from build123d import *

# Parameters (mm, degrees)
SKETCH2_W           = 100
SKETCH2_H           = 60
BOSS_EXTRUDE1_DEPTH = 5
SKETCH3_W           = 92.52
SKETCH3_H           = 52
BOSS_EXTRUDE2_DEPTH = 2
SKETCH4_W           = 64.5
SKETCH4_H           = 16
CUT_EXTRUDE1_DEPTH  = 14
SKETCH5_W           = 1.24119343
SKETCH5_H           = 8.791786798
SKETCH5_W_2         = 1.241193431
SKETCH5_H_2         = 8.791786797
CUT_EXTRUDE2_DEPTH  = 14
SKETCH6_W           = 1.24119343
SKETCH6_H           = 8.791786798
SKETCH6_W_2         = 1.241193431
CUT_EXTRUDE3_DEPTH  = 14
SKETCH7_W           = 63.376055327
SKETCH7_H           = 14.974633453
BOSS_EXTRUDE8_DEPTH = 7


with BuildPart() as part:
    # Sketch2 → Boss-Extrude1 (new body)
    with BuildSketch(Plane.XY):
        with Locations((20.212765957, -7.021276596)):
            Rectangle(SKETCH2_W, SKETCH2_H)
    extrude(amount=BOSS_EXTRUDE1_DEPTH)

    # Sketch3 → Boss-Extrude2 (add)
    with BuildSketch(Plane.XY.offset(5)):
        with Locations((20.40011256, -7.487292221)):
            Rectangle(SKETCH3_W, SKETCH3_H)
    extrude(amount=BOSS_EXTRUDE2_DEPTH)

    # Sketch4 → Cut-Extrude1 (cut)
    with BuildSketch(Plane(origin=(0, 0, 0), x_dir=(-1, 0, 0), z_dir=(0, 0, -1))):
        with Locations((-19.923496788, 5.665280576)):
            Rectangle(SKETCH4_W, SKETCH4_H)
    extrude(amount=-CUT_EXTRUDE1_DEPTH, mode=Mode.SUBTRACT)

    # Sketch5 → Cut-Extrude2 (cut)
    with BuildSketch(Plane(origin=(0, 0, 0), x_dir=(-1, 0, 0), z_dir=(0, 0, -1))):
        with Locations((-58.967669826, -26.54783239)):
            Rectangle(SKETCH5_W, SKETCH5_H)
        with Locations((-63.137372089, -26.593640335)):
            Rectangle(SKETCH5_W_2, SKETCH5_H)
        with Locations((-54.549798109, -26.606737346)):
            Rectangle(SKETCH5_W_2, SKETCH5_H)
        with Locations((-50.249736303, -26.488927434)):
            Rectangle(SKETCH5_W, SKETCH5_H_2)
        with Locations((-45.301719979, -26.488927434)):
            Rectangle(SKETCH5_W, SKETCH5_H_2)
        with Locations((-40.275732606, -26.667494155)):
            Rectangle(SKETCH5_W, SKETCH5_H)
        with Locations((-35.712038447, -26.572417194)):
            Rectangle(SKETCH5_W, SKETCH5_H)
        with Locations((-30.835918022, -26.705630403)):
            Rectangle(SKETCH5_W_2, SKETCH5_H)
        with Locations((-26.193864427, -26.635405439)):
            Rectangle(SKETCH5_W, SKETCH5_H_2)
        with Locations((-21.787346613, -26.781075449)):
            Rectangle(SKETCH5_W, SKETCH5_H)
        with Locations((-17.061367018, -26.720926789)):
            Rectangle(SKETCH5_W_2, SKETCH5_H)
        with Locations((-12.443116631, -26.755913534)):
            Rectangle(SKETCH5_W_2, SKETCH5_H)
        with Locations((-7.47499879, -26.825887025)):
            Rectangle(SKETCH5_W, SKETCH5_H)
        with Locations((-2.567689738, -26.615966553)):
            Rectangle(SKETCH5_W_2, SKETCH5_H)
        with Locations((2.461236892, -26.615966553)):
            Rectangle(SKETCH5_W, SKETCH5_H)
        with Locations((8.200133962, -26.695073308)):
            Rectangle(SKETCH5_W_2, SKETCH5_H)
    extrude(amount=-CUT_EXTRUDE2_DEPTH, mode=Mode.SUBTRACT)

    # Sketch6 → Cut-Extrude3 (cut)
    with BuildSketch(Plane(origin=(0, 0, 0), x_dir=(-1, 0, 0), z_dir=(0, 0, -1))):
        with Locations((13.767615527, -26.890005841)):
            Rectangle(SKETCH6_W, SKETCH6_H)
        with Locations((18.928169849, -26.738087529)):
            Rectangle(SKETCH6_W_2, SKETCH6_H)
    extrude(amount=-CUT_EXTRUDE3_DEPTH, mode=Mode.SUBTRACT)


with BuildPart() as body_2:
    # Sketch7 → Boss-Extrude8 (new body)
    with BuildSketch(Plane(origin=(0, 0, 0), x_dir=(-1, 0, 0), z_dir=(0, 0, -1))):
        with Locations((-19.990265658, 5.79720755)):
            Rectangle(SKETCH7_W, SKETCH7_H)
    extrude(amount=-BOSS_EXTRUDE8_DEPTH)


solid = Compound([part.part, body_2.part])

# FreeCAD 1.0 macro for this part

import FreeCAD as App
import Part
import Sketcher

V = App.Vector
Q = App.Units.Quantity

doc = App.newDocument("Part")
params = doc.addObject("Spreadsheet::Sheet", "Params")
for row, (alias, value) in enumerate([
    ("sketch1_width", "100 mm"),
    ("sketch1_height", "60 mm"),
    ("pad1_length", "5 mm"),
    ("sketch2_height", "52 mm"),
    ("sketch2_width", "92.52 mm"),
    ("pad2_length", "2 mm"),
    ("sketch3_height", "16 mm"),
    ("sketch3_width", "64.5 mm"),
    ("pocket1_length", "14 mm"),
    ("pocket2_length", "14 mm"),
    ("pocket3_length", "14 mm"),
    ("pad3_length", "7 mm"),
], start=1):
    params.set(f"A{row}", alias)
    params.set(f"B{row}", "=" + value)
    params.setAlias(f"B{row}", alias)

body = doc.addObject("PartDesign::Body", "Body")

sketch1 = doc.addObject("Sketcher::SketchObject", "Sketch")
body.addObject(sketch1)
sketch1.AttachmentSupport = (doc.XY_Plane, [""])
sketch1.MapMode = "FlatFace"
sketch1.addGeometry([
    Part.LineSegment(V(-29.787234, 22.978723, 0), V(-29.787234, -37.021277, 0)),
    Part.LineSegment(V(-29.787234, -37.021277, 0), V(70.212766, -37.021277, 0)),
    Part.LineSegment(V(70.212766, -37.021277, 0), V(70.212766, 22.978723, 0)),
    Part.LineSegment(V(70.212766, 22.978723, 0), V(-29.787234, 22.978723, 0)),
], False)
sketch1.addConstraint([
    Sketcher.Constraint("Coincident", 0, 2, 1, 1),
    Sketcher.Constraint("Coincident", 1, 2, 2, 1),
    Sketcher.Constraint("Coincident", 2, 2, 3, 1),
    Sketcher.Constraint("Coincident", 3, 2, 0, 1),
    Sketcher.Constraint("Vertical", 0),
    Sketcher.Constraint("Horizontal", 1),
    Sketcher.Constraint("Vertical", 2),
    Sketcher.Constraint("Horizontal", 3),
    Sketcher.Constraint("DistanceX", 1, 1, 1, 2, Q("100 mm")),
    Sketcher.Constraint("DistanceY", 0, 2, 0, 1, Q("60 mm")),
    Sketcher.Constraint("DistanceX", 0, 2, -1, 1, Q("29.787234 mm")),
    Sketcher.Constraint("DistanceY", 0, 2, -1, 1, Q("37.021277 mm")),
])
sketch1.setExpression("Constraints[8]", "Params.sketch1_width")
sketch1.setExpression("Constraints[9]", "Params.sketch1_height")
pad1 = doc.addObject("PartDesign::Pad", "Pad")
body.addObject(pad1)
pad1.Profile = sketch1
pad1.setExpression("Length", "Params.pad1_length")

sketch2 = doc.addObject("Sketcher::SketchObject", "Sketch001")
body.addObject(sketch2)
sketch2.AttachmentSupport = (doc.XY_Plane, [""])
sketch2.MapMode = "FlatFace"
sketch2.AttachmentOffset = App.Placement(V(0, 0, 5), App.Rotation())
sketch2.addGeometry([
    Part.LineSegment(V(-25.859887, 18.512708, 0), V(-25.859887, -33.487292, 0)),
    Part.LineSegment(V(-25.859887, -33.487292, 0), V(66.660113, -33.487292, 0)),
    Part.LineSegment(V(66.660113, -33.487292, 0), V(66.660113, 18.512708, 0)),
    Part.LineSegment(V(66.660113, 18.512708, 0), V(-25.859887, 18.512708, 0)),
], False)
sketch2.addConstraint([
    Sketcher.Constraint("Coincident", 0, 2, 1, 1),
    Sketcher.Constraint("Coincident", 1, 2, 2, 1),
    Sketcher.Constraint("Coincident", 2, 2, 3, 1),
    Sketcher.Constraint("Coincident", 3, 2, 0, 1),
    Sketcher.Constraint("Vertical", 0),
    Sketcher.Constraint("Horizontal", 1),
    Sketcher.Constraint("Vertical", 2),
    Sketcher.Constraint("Horizontal", 3),
    Sketcher.Constraint("DistanceY", 0, 2, 0, 1, Q("52 mm")),
    Sketcher.Constraint("DistanceX", 1, 1, 1, 2, Q("92.52 mm")),
    Sketcher.Constraint("DistanceX", 0, 2, -1, 1, Q("25.859887 mm")),
    Sketcher.Constraint("DistanceY", 0, 2, -1, 1, Q("33.487292 mm")),
])
sketch2.setExpression("Constraints[8]", "Params.sketch2_height")
sketch2.setExpression("Constraints[9]", "Params.sketch2_width")
pad2 = doc.addObject("PartDesign::Pad", "Pad001")
body.addObject(pad2)
pad2.Profile = sketch2
pad2.setExpression("Length", "Params.pad2_length")

sketch3 = doc.addObject("Sketcher::SketchObject", "Sketch002")
body.addObject(sketch3)
sketch3.AttachmentSupport = (doc.XY_Plane, [""])
sketch3.MapMode = "FlatFace"
sketch3.addGeometry([
    Part.LineSegment(V(52.173497, 13.665281, 0), V(52.173497, -2.334719, 0)),
    Part.LineSegment(V(52.173497, -2.334719, 0), V(-12.326503, -2.334719, 0)),
    Part.LineSegment(V(-12.326503, -2.334719, 0), V(-12.326503, 13.665281, 0)),
    Part.LineSegment(V(-12.326503, 13.665281, 0), V(52.173497, 13.665281, 0)),
], False)
sketch3.addConstraint([
    Sketcher.Constraint("Coincident", 0, 2, 1, 1),
    Sketcher.Constraint("Coincident", 1, 2, 2, 1),
    Sketcher.Constraint("Coincident", 2, 2, 3, 1),
    Sketcher.Constraint("Coincident", 3, 2, 0, 1),
    Sketcher.Constraint("Vertical", 0),
    Sketcher.Constraint("Horizontal", 1),
    Sketcher.Constraint("Vertical", 2),
    Sketcher.Constraint("Horizontal", 3),
    Sketcher.Constraint("DistanceY", 0, 2, 0, 1, Q("16 mm")),
    Sketcher.Constraint("DistanceX", 1, 2, 1, 1, Q("64.5 mm")),
    Sketcher.Constraint("DistanceY", 0, 2, -1, 1, Q("2.334719 mm")),
    Sketcher.Constraint("DistanceX", -1, 1, 0, 2, Q("52.173497 mm")),
])
sketch3.setExpression("Constraints[8]", "Params.sketch3_height")
sketch3.setExpression("Constraints[9]", "Params.sketch3_width")
pocket1 = doc.addObject("PartDesign::Pocket", "Pocket")
body.addObject(pocket1)
pocket1.Profile = sketch3
pocket1.setExpression("Length", "Params.pocket1_length")
pocket1.Reversed = True

sketch4 = doc.addObject("Sketcher::SketchObject", "Sketch003")
body.addObject(sketch4)
sketch4.AttachmentSupport = (doc.XY_Plane, [""])
sketch4.MapMode = "FlatFace"
sketch4.addGeometry([
    Part.LineSegment(V(59.588267, -22.151939, 0), V(59.588267, -30.943726, 0)),
    Part.LineSegment(V(59.588267, -30.943726, 0), V(58.347073, -30.943726, 0)),
    Part.LineSegment(V(58.347073, -30.943726, 0), V(58.347073, -22.151939, 0)),
    Part.LineSegment(V(58.347073, -22.151939, 0), V(59.588267, -22.151939, 0)),
    Part.LineSegment(V(63.757969, -22.197747, 0), V(63.757969, -30.989534, 0)),
    Part.LineSegment(V(63.757969, -30.989534, 0), V(62.516775, -30.989534, 0)),
    Part.LineSegment(V(62.516775, -30.989534, 0), V(62.516775, -22.197747, 0)),
    Part.LineSegment(V(62.516775, -22.197747, 0), V(63.757969, -22.197747, 0)),
    Part.LineSegment(V(55.170395, -22.210844, 0), V(55.170395, -31.002631, 0)),
    Part.LineSegment(V(55.170395, -31.002631, 0), V(53.929201, -31.002631, 0)),
    Part.LineSegment(V(53.929201, -31.002631, 0), V(53.929201, -22.210844, 0)),
    Part.LineSegment(V(53.929201, -22.210844, 0), V(55.170395, -22.210844, 0)),
    Part.LineSegment(V(50.870333, -22.093034, 0), V(50.870333, -30.884821, 0)),
    Part.LineSegment(V(50.870333, -30.884821, 0), V(49.62914, -30.884821, 0)),
    Part.LineSegment(V(49.62914, -30.884821, 0), V(49.62914, -22.093034, 0)),
    Part.LineSegment(V(49.62914, -22.093034, 0), V(50.870333, -22.093034, 0)),
    Part.LineSegment(V(45.922317, -22.093034, 0), V(45.922317, -30.884821, 0)),
    Part.LineSegment(V(45.922317, -30.884821, 0), V(44.681123, -30.884821, 0)),
    Part.LineSegment(V(44.681123, -30.884821, 0), V(44.681123, -22.093034, 0)),
    Part.LineSegment(V(44.681123, -22.093034, 0), V(45.922317, -22.093034, 0)),
    Part.LineSegment(V(40.896329, -22.271601, 0), V(40.896329, -31.063388, 0)),
    Part.LineSegment(V(40.896329, -31.063388, 0), V(39.655136, -31.063388, 0)),
    Part.LineSegment(V(39.655136, -31.063388, 0), V(39.655136, -22.271601, 0)),
    Part.LineSegment(V(39.655136, -22.271601, 0), V(40.896329, -22.271601, 0)),
    Part.LineSegment(V(36.332635, -22.176524, 0), V(36.332635, -30.968311, 0)),
    Part.LineSegment(V(36.332635, -30.968311, 0), V(35.091442, -30.968311, 0)),
    Part.LineSegment(V(35.091442, -30.968311, 0), V(35.091442, -22.176524, 0)),
    Part.LineSegment(V(35.091442, -22.176524, 0), V(36.332635, -22.176524, 0)),
    Part.LineSegment(V(31.456515, -22.309737, 0), V(31.456515, -31.101524, 0)),
    Part.LineSegment(V(31.456515, -31.101524, 0), V(30.215321, -31.101524, 0)),
    Part.LineSegment(V(30.215321, -31.101524, 0), V(30.215321, -22.309737, 0)),
    Part.LineSegment(V(30.215321, -22.309737, 0), V(31.456515, -22.309737, 0)),
    Part.LineSegment(V(26.814461, -22.239512, 0), V(26.814461, -31.031299, 0)),
    Part.LineSegment(V(26.814461, -31.031299, 0), V(25.573268, -31.031299, 0)),
    Part.LineSegment(V(25.573268, -31.031299, 0), V(25.573268, -22.239512, 0)),
    Part.LineSegment(V(25.573268, -22.239512, 0), V(26.814461, -22.239512, 0)),
    Part.LineSegment(V(22.407943, -22.385182, 0), V(22.407943, -31.176969, 0)),
    Part.LineSegment(V(22.407943, -31.176969, 0), V(21.16675, -31.176969, 0)),
    Part.LineSegment(V(21.16675, -31.176969, 0), V(21.16675, -22.385182, 0)),
    Part.LineSegment(V(21.16675, -22.385182, 0), V(22.407943, -22.385182, 0)),
    Part.LineSegment(V(17.681964, -22.325033, 0), V(17.681964, -31.11682, 0)),
    Part.LineSegment(V(17.681964, -31.11682, 0), V(16.44077, -31.11682, 0)),
    Part.LineSegment(V(16.44077, -31.11682, 0), V(16.44077, -22.325033, 0)),
    Part.LineSegment(V(16.44077, -22.325033, 0), V(17.681964, -22.325033, 0)),
    Part.LineSegment(V(13.063713, -22.36002, 0), V(13.063713, -31.151807, 0)),
    Part.LineSegment(V(13.063713, -31.151807, 0), V(11.82252, -31.151807, 0)),
    Part.LineSegment(V(11.82252, -31.151807, 0), V(11.82252, -22.36002, 0)),
    Part.LineSegment(V(11.82252, -22.36002, 0), V(13.063713, -22.36002, 0)),
    Part.LineSegment(V(8.095596, -22.429994, 0), V(8.095596, -31.22178, 0)),
    Part.LineSegment(V(8.095596, -31.22178, 0), V(6.854402, -31.22178, 0)),
    Part.LineSegment(V(6.854402, -31.22178, 0), V(6.854402, -22.429994, 0)),
    Part.LineSegment(V(6.854402, -22.429994, 0), V(8.095596, -22.429994, 0)),
    Part.LineSegment(V(3.188286, -22.220073, 0), V(3.188286, -31.01186, 0)),
    Part.LineSegment(V(3.188286, -31.01186, 0), V(1.947093, -31.01186, 0)),
    Part.LineSegment(V(1.947093, -31.01186, 0), V(1.947093, -22.220073, 0)),
    Part.LineSegment(V(1.947093, -22.220073, 0), V(3.188286, -22.220073, 0)),
    Part.LineSegment(V(-1.84064, -22.220073, 0), V(-1.84064, -31.01186, 0)),
    Part.LineSegment(V(-1.84064, -31.01186, 0), V(-3.081834, -31.01186, 0)),
    Part.LineSegment(V(-3.081834, -31.01186, 0), V(-3.081834, -22.220073, 0)),
    Part.LineSegment(V(-3.081834, -22.220073, 0), V(-1.84064, -22.220073, 0)),
    Part.LineSegment(V(-7.579537, -22.29918, 0), V(-7.579537, -31.090967, 0)),
    Part.LineSegment(V(-7.579537, -31.090967, 0), V(-8.820731, -31.090967, 0)),
    Part.LineSegment(V(-8.820731, -31.090967, 0), V(-8.820731, -22.29918, 0)),
    Part.LineSegment(V(-8.820731, -22.29918, 0), V(-7.579537, -22.29918, 0)),
], False)
sketch4.addConstraint([
    Sketcher.Constraint("Coincident", 0, 2, 1, 1),
    Sketcher.Constraint("Coincident", 1, 2, 2, 1),
    Sketcher.Constraint("Coincident", 2, 2, 3, 1),
    Sketcher.Constraint("Coincident", 3, 2, 0, 1),
    Sketcher.Constraint("Coincident", 4, 2, 5, 1),
    Sketcher.Constraint("Coincident", 5, 2, 6, 1),
    Sketcher.Constraint("Coincident", 6, 2, 7, 1),
    Sketcher.Constraint("Coincident", 7, 2, 4, 1),
    Sketcher.Constraint("Coincident", 8, 2, 9, 1),
    Sketcher.Constraint("Coincident", 9, 2, 10, 1),
    Sketcher.Constraint("Coincident", 10, 2, 11, 1),
    Sketcher.Constraint("Coincident", 11, 2, 8, 1),
    Sketcher.Constraint("Coincident", 12, 2, 13, 1),
    Sketcher.Constraint("Coincident", 13, 2, 14, 1),
    Sketcher.Constraint("Coincident", 14, 2, 15, 1),
    Sketcher.Constraint("Coincident", 15, 2, 12, 1),
    Sketcher.Constraint("Coincident", 16, 2, 17, 1),
    Sketcher.Constraint("Coincident", 17, 2, 18, 1),
    Sketcher.Constraint("Coincident", 18, 2, 19, 1),
    Sketcher.Constraint("Coincident", 19, 2, 16, 1),
    Sketcher.Constraint("Coincident", 20, 2, 21, 1),
    Sketcher.Constraint("Coincident", 21, 2, 22, 1),
    Sketcher.Constraint("Coincident", 22, 2, 23, 1),
    Sketcher.Constraint("Coincident", 23, 2, 20, 1),
    Sketcher.Constraint("Coincident", 24, 2, 25, 1),
    Sketcher.Constraint("Coincident", 25, 2, 26, 1),
    Sketcher.Constraint("Coincident", 26, 2, 27, 1),
    Sketcher.Constraint("Coincident", 27, 2, 24, 1),
    Sketcher.Constraint("Coincident", 28, 2, 29, 1),
    Sketcher.Constraint("Coincident", 29, 2, 30, 1),
    Sketcher.Constraint("Coincident", 30, 2, 31, 1),
    Sketcher.Constraint("Coincident", 31, 2, 28, 1),
    Sketcher.Constraint("Coincident", 32, 2, 33, 1),
    Sketcher.Constraint("Coincident", 33, 2, 34, 1),
    Sketcher.Constraint("Coincident", 34, 2, 35, 1),
    Sketcher.Constraint("Coincident", 35, 2, 32, 1),
    Sketcher.Constraint("Coincident", 36, 2, 37, 1),
    Sketcher.Constraint("Coincident", 37, 2, 38, 1),
    Sketcher.Constraint("Coincident", 38, 2, 39, 1),
    Sketcher.Constraint("Coincident", 39, 2, 36, 1),
    Sketcher.Constraint("Coincident", 40, 2, 41, 1),
    Sketcher.Constraint("Coincident", 41, 2, 42, 1),
    Sketcher.Constraint("Coincident", 42, 2, 43, 1),
    Sketcher.Constraint("Coincident", 43, 2, 40, 1),
    Sketcher.Constraint("Coincident", 44, 2, 45, 1),
    Sketcher.Constraint("Coincident", 45, 2, 46, 1),
    Sketcher.Constraint("Coincident", 46, 2, 47, 1),
    Sketcher.Constraint("Coincident", 47, 2, 44, 1),
    Sketcher.Constraint("Coincident", 48, 2, 49, 1),
    Sketcher.Constraint("Coincident", 49, 2, 50, 1),
    Sketcher.Constraint("Coincident", 50, 2, 51, 1),
    Sketcher.Constraint("Coincident", 51, 2, 48, 1),
    Sketcher.Constraint("Coincident", 52, 2, 53, 1),
    Sketcher.Constraint("Coincident", 53, 2, 54, 1),
    Sketcher.Constraint("Coincident", 54, 2, 55, 1),
    Sketcher.Constraint("Coincident", 55, 2, 52, 1),
    Sketcher.Constraint("Coincident", 56, 2, 57, 1),
    Sketcher.Constraint("Coincident", 57, 2, 58, 1),
    Sketcher.Constraint("Coincident", 58, 2, 59, 1),
    Sketcher.Constraint("Coincident", 59, 2, 56, 1),
    Sketcher.Constraint("Coincident", 60, 2, 61, 1),
    Sketcher.Constraint("Coincident", 61, 2, 62, 1),
    Sketcher.Constraint("Coincident", 62, 2, 63, 1),
    Sketcher.Constraint("Coincident", 63, 2, 60, 1),
    Sketcher.Constraint("Vertical", 0),
    Sketcher.Constraint("Horizontal", 1),
    Sketcher.Constraint("Vertical", 2),
    Sketcher.Constraint("Horizontal", 3),
    Sketcher.Constraint("Vertical", 4),
    Sketcher.Constraint("Horizontal", 5),
    Sketcher.Constraint("Vertical", 6),
    Sketcher.Constraint("Horizontal", 7),
    Sketcher.Constraint("Vertical", 8),
    Sketcher.Constraint("Horizontal", 9),
    Sketcher.Constraint("Vertical", 10),
    Sketcher.Constraint("Horizontal", 11),
    Sketcher.Constraint("Vertical", 12),
    Sketcher.Constraint("Horizontal", 13),
    Sketcher.Constraint("Vertical", 14),
    Sketcher.Constraint("Horizontal", 15),
    Sketcher.Constraint("Vertical", 16),
    Sketcher.Constraint("Horizontal", 17),
    Sketcher.Constraint("Vertical", 18),
    Sketcher.Constraint("Horizontal", 19),
    Sketcher.Constraint("Vertical", 20),
    Sketcher.Constraint("Horizontal", 21),
    Sketcher.Constraint("Vertical", 22),
    Sketcher.Constraint("Horizontal", 23),
    Sketcher.Constraint("Vertical", 24),
    Sketcher.Constraint("Horizontal", 25),
    Sketcher.Constraint("Vertical", 26),
    Sketcher.Constraint("Horizontal", 27),
    Sketcher.Constraint("Vertical", 28),
    Sketcher.Constraint("Horizontal", 29),
    Sketcher.Constraint("Vertical", 30),
    Sketcher.Constraint("Horizontal", 31),
    Sketcher.Constraint("Vertical", 32),
    Sketcher.Constraint("Horizontal", 33),
    Sketcher.Constraint("Vertical", 34),
    Sketcher.Constraint("Horizontal", 35),
    Sketcher.Constraint("Vertical", 36),
    Sketcher.Constraint("Horizontal", 37),
    Sketcher.Constraint("Vertical", 38),
    Sketcher.Constraint("Horizontal", 39),
    Sketcher.Constraint("Vertical", 40),
    Sketcher.Constraint("Horizontal", 41),
    Sketcher.Constraint("Vertical", 42),
    Sketcher.Constraint("Horizontal", 43),
    Sketcher.Constraint("Vertical", 44),
    Sketcher.Constraint("Horizontal", 45),
    Sketcher.Constraint("Vertical", 46),
    Sketcher.Constraint("Horizontal", 47),
    Sketcher.Constraint("Vertical", 48),
    Sketcher.Constraint("Horizontal", 49),
    Sketcher.Constraint("Vertical", 50),
    Sketcher.Constraint("Horizontal", 51),
    Sketcher.Constraint("Vertical", 52),
    Sketcher.Constraint("Horizontal", 53),
    Sketcher.Constraint("Vertical", 54),
    Sketcher.Constraint("Horizontal", 55),
    Sketcher.Constraint("Vertical", 56),
    Sketcher.Constraint("Horizontal", 57),
    Sketcher.Constraint("Vertical", 58),
    Sketcher.Constraint("Horizontal", 59),
    Sketcher.Constraint("Vertical", 60),
    Sketcher.Constraint("Horizontal", 61),
    Sketcher.Constraint("Vertical", 62),
    Sketcher.Constraint("Horizontal", 63),
    Sketcher.Constraint("Horizontal", 13, 2, 16, 2),
    Sketcher.Constraint("Horizontal", 15, 2, 18, 2),
    Sketcher.Constraint("Horizontal", 53, 2, 56, 2),
    Sketcher.Constraint("Horizontal", 55, 2, 58, 2),
    Sketcher.Constraint("Equal", 3, 5),
    Sketcher.Constraint("Equal", 7, 9),
    Sketcher.Constraint("Equal", 11, 13),
    Sketcher.Constraint("Equal", 15, 17),
    Sketcher.Constraint("Equal", 19, 21),
    Sketcher.Constraint("Equal", 23, 25),
    Sketcher.Constraint("Equal", 27, 29),
    Sketcher.Constraint("Equal", 31, 33),
    Sketcher.Constraint("Equal", 35, 37),
    Sketcher.Constraint("Equal", 39, 41),
    Sketcher.Constraint("Equal", 43, 45),
    Sketcher.Constraint("Equal", 47, 49),
    Sketcher.Constraint("Equal", 51, 53),
    Sketcher.Constraint("Equal", 55, 57),
    Sketcher.Constraint("Equal", 59, 61),
    Sketcher.Constraint("Equal", 2, 4),
    Sketcher.Constraint("Equal", 6, 8),
    Sketcher.Constraint("Equal", 10, 12),
    Sketcher.Constraint("Equal", 18, 20),
    Sketcher.Constraint("Equal", 22, 24),
    Sketcher.Constraint("Equal", 26, 28),
    Sketcher.Constraint("Equal", 30, 32),
    Sketcher.Constraint("Equal", 34, 36),
    Sketcher.Constraint("Equal", 38, 40),
    Sketcher.Constraint("Equal", 42, 44),
    Sketcher.Constraint("Equal", 46, 48),
    Sketcher.Constraint("Equal", 50, 52),
    Sketcher.Constraint("Equal", 58, 60),
    Sketcher.Constraint("DistanceX", -1, 1, 9, 2, Q("53.929201 mm")),
    Sketcher.Constraint("DistanceY", 22, 2, -1, 1, Q("22.271601 mm")),
    Sketcher.Constraint("DistanceY", 32, 2, -1, 1, Q("31.031299 mm")),
    Sketcher.Constraint("DistanceX", 1, 2, 1, 1, Q("1.241193 mm")),
    Sketcher.Constraint("DistanceY", 0, 2, 0, 1, Q("8.791787 mm")),
    Sketcher.Constraint("DistanceY", 2, 2, -1, 1, Q("22.151939 mm")),
    Sketcher.Constraint("DistanceX", -1, 1, 4, 2, Q("63.757969 mm")),
    Sketcher.Constraint("DistanceY", 8, 2, -1, 1, Q("31.002631 mm")),
    Sketcher.Constraint("DistanceY", 12, 2, -1, 1, Q("30.884821 mm")),
    Sketcher.Constraint("DistanceX", -1, 1, 13, 2, Q("49.62914 mm")),
    Sketcher.Constraint("DistanceX", -1, 1, 20, 2, Q("40.896329 mm")),
    Sketcher.Constraint("DistanceY", 24, 2, -1, 1, Q("30.968311 mm")),
    Sketcher.Constraint("DistanceX", -1, 1, 25, 2, Q("35.091442 mm")),
    Sketcher.Constraint("DistanceX", -1, 1, 29, 2, Q("30.215321 mm")),
    Sketcher.Constraint("DistanceX", -1, 1, 32, 2, Q("26.814461 mm")),
    Sketcher.Constraint("DistanceY", 36, 2, -1, 1, Q("31.176969 mm")),
    Sketcher.Constraint("DistanceX", -1, 1, 37, 2, Q("21.16675 mm")),
    Sketcher.Constraint("DistanceY", 40, 2, -1, 1, Q("31.11682 mm")),
    Sketcher.Constraint("DistanceX", -1, 1, 41, 2, Q("16.44077 mm")),
    Sketcher.Constraint("DistanceX", -1, 1, 45, 2, Q("11.82252 mm")),
    Sketcher.Constraint("DistanceY", 46, 2, -1, 1, Q("22.36002 mm")),
    Sketcher.Constraint("DistanceY", 48, 2, -1, 1, Q("31.22178 mm")),
    Sketcher.Constraint("DistanceY", 52, 2, -1, 1, Q("31.01186 mm")),
    Sketcher.Constraint("DistanceX", 56, 2, -1, 1, Q("1.84064 mm")),
    Sketcher.Constraint("DistanceX", 61, 2, -1, 1, Q("8.820731 mm")),
    Sketcher.Constraint("DistanceY", 62, 2, -1, 1, Q("22.29918 mm")),
    Sketcher.Constraint("DistanceX", -1, 1, 0, 2, Q("59.588267 mm")),
    Sketcher.Constraint("DistanceY", 4, 2, -1, 1, Q("30.989534 mm")),
    Sketcher.Constraint("DistanceX", -1, 1, 16, 2, Q("45.922317 mm")),
    Sketcher.Constraint("DistanceY", 28, 2, -1, 1, Q("31.101524 mm")),
    Sketcher.Constraint("DistanceX", -1, 1, 48, 2, Q("8.095596 mm")),
    Sketcher.Constraint("DistanceX", -1, 1, 52, 2, Q("3.188286 mm")),
])
pocket2 = doc.addObject("PartDesign::Pocket", "Pocket001")
body.addObject(pocket2)
pocket2.Profile = sketch4
pocket2.setExpression("Length", "Params.pocket2_length")
pocket2.Reversed = True

sketch5 = doc.addObject("Sketcher::SketchObject", "Sketch004")
body.addObject(sketch5)
sketch5.AttachmentSupport = (doc.XY_Plane, [""])
sketch5.MapMode = "FlatFace"
sketch5.addGeometry([
    Part.LineSegment(V(-13.147019, -22.494112, 0), V(-13.147019, -31.285899, 0)),
    Part.LineSegment(V(-13.147019, -31.285899, 0), V(-14.388212, -31.285899, 0)),
    Part.LineSegment(V(-14.388212, -31.285899, 0), V(-14.388212, -22.494112, 0)),
    Part.LineSegment(V(-14.388212, -22.494112, 0), V(-13.147019, -22.494112, 0)),
    Part.LineSegment(V(-18.307573, -22.342194, 0), V(-18.307573, -31.133981, 0)),
    Part.LineSegment(V(-18.307573, -31.133981, 0), V(-19.548767, -31.133981, 0)),
    Part.LineSegment(V(-19.548767, -31.133981, 0), V(-19.548767, -22.342194, 0)),
    Part.LineSegment(V(-19.548767, -22.342194, 0), V(-18.307573, -22.342194, 0)),
], False)
sketch5.addConstraint([
    Sketcher.Constraint("Coincident", 0, 2, 1, 1),
    Sketcher.Constraint("Coincident", 1, 2, 2, 1),
    Sketcher.Constraint("Coincident", 2, 2, 3, 1),
    Sketcher.Constraint("Coincident", 3, 2, 0, 1),
    Sketcher.Constraint("Coincident", 4, 2, 5, 1),
    Sketcher.Constraint("Coincident", 5, 2, 6, 1),
    Sketcher.Constraint("Coincident", 6, 2, 7, 1),
    Sketcher.Constraint("Coincident", 7, 2, 4, 1),
    Sketcher.Constraint("Vertical", 0),
    Sketcher.Constraint("Horizontal", 1),
    Sketcher.Constraint("Vertical", 2),
    Sketcher.Constraint("Horizontal", 3),
    Sketcher.Constraint("Vertical", 4),
    Sketcher.Constraint("Horizontal", 5),
    Sketcher.Constraint("Vertical", 6),
    Sketcher.Constraint("Horizontal", 7),
    Sketcher.Constraint("Equal", 3, 5),
    Sketcher.Constraint("Equal", 2, 4),
    Sketcher.Constraint("DistanceY", 0, 2, -1, 1, Q("31.285899 mm")),
    Sketcher.Constraint("DistanceX", 1, 2, 1, 1, Q("1.241193 mm")),
    Sketcher.Constraint("DistanceY", 0, 2, 0, 1, Q("8.791787 mm")),
    Sketcher.Constraint("DistanceX", 0, 2, -1, 1, Q("13.147019 mm")),
    Sketcher.Constraint("DistanceY", 4, 2, -1, 1, Q("31.133981 mm")),
    Sketcher.Constraint("DistanceX", 4, 2, 1, 2, Q("3.919361 mm")),
])
pocket3 = doc.addObject("PartDesign::Pocket", "Pocket002")
body.addObject(pocket3)
pocket3.Profile = sketch5
pocket3.setExpression("Length", "Params.pocket3_length")
pocket3.Reversed = True
body2 = doc.addObject("PartDesign::Body", "Body001")

sketch6 = doc.addObject("Sketcher::SketchObject", "Sketch005")
body2.addObject(sketch6)
sketch6.AttachmentSupport = (doc.getObject("XY_Plane001"), [""])
sketch6.MapMode = "FlatFace"
sketch6.addGeometry([
    Part.LineSegment(V(51.678293, 13.284524, 0), V(51.678293, -1.690109, 0)),
    Part.LineSegment(V(51.678293, -1.690109, 0), V(-11.697762, -1.690109, 0)),
    Part.LineSegment(V(-11.697762, -1.690109, 0), V(-11.697762, 13.284524, 0)),
    Part.LineSegment(V(-11.697762, 13.284524, 0), V(51.678293, 13.284524, 0)),
], False)
sketch6.addConstraint([
    Sketcher.Constraint("Coincident", 0, 2, 1, 1),
    Sketcher.Constraint("Coincident", 1, 2, 2, 1),
    Sketcher.Constraint("Coincident", 2, 2, 3, 1),
    Sketcher.Constraint("Coincident", 3, 2, 0, 1),
    Sketcher.Constraint("Vertical", 0),
    Sketcher.Constraint("Horizontal", 1),
    Sketcher.Constraint("Vertical", 2),
    Sketcher.Constraint("Horizontal", 3),
    Sketcher.Constraint("DistanceX", 1, 2, 1, 1, Q("63.376055 mm")),
    Sketcher.Constraint("DistanceY", 0, 2, 0, 1, Q("14.974633 mm")),
    Sketcher.Constraint("DistanceY", 0, 2, -1, 1, Q("1.690109 mm")),
    Sketcher.Constraint("DistanceX", -1, 1, 0, 2, Q("51.678293 mm")),
])
pad3 = doc.addObject("PartDesign::Pad", "Pad002")
body2.addObject(pad3)
pad3.Profile = sketch6
pad3.setExpression("Length", "Params.pad3_length")

doc.recompute()
